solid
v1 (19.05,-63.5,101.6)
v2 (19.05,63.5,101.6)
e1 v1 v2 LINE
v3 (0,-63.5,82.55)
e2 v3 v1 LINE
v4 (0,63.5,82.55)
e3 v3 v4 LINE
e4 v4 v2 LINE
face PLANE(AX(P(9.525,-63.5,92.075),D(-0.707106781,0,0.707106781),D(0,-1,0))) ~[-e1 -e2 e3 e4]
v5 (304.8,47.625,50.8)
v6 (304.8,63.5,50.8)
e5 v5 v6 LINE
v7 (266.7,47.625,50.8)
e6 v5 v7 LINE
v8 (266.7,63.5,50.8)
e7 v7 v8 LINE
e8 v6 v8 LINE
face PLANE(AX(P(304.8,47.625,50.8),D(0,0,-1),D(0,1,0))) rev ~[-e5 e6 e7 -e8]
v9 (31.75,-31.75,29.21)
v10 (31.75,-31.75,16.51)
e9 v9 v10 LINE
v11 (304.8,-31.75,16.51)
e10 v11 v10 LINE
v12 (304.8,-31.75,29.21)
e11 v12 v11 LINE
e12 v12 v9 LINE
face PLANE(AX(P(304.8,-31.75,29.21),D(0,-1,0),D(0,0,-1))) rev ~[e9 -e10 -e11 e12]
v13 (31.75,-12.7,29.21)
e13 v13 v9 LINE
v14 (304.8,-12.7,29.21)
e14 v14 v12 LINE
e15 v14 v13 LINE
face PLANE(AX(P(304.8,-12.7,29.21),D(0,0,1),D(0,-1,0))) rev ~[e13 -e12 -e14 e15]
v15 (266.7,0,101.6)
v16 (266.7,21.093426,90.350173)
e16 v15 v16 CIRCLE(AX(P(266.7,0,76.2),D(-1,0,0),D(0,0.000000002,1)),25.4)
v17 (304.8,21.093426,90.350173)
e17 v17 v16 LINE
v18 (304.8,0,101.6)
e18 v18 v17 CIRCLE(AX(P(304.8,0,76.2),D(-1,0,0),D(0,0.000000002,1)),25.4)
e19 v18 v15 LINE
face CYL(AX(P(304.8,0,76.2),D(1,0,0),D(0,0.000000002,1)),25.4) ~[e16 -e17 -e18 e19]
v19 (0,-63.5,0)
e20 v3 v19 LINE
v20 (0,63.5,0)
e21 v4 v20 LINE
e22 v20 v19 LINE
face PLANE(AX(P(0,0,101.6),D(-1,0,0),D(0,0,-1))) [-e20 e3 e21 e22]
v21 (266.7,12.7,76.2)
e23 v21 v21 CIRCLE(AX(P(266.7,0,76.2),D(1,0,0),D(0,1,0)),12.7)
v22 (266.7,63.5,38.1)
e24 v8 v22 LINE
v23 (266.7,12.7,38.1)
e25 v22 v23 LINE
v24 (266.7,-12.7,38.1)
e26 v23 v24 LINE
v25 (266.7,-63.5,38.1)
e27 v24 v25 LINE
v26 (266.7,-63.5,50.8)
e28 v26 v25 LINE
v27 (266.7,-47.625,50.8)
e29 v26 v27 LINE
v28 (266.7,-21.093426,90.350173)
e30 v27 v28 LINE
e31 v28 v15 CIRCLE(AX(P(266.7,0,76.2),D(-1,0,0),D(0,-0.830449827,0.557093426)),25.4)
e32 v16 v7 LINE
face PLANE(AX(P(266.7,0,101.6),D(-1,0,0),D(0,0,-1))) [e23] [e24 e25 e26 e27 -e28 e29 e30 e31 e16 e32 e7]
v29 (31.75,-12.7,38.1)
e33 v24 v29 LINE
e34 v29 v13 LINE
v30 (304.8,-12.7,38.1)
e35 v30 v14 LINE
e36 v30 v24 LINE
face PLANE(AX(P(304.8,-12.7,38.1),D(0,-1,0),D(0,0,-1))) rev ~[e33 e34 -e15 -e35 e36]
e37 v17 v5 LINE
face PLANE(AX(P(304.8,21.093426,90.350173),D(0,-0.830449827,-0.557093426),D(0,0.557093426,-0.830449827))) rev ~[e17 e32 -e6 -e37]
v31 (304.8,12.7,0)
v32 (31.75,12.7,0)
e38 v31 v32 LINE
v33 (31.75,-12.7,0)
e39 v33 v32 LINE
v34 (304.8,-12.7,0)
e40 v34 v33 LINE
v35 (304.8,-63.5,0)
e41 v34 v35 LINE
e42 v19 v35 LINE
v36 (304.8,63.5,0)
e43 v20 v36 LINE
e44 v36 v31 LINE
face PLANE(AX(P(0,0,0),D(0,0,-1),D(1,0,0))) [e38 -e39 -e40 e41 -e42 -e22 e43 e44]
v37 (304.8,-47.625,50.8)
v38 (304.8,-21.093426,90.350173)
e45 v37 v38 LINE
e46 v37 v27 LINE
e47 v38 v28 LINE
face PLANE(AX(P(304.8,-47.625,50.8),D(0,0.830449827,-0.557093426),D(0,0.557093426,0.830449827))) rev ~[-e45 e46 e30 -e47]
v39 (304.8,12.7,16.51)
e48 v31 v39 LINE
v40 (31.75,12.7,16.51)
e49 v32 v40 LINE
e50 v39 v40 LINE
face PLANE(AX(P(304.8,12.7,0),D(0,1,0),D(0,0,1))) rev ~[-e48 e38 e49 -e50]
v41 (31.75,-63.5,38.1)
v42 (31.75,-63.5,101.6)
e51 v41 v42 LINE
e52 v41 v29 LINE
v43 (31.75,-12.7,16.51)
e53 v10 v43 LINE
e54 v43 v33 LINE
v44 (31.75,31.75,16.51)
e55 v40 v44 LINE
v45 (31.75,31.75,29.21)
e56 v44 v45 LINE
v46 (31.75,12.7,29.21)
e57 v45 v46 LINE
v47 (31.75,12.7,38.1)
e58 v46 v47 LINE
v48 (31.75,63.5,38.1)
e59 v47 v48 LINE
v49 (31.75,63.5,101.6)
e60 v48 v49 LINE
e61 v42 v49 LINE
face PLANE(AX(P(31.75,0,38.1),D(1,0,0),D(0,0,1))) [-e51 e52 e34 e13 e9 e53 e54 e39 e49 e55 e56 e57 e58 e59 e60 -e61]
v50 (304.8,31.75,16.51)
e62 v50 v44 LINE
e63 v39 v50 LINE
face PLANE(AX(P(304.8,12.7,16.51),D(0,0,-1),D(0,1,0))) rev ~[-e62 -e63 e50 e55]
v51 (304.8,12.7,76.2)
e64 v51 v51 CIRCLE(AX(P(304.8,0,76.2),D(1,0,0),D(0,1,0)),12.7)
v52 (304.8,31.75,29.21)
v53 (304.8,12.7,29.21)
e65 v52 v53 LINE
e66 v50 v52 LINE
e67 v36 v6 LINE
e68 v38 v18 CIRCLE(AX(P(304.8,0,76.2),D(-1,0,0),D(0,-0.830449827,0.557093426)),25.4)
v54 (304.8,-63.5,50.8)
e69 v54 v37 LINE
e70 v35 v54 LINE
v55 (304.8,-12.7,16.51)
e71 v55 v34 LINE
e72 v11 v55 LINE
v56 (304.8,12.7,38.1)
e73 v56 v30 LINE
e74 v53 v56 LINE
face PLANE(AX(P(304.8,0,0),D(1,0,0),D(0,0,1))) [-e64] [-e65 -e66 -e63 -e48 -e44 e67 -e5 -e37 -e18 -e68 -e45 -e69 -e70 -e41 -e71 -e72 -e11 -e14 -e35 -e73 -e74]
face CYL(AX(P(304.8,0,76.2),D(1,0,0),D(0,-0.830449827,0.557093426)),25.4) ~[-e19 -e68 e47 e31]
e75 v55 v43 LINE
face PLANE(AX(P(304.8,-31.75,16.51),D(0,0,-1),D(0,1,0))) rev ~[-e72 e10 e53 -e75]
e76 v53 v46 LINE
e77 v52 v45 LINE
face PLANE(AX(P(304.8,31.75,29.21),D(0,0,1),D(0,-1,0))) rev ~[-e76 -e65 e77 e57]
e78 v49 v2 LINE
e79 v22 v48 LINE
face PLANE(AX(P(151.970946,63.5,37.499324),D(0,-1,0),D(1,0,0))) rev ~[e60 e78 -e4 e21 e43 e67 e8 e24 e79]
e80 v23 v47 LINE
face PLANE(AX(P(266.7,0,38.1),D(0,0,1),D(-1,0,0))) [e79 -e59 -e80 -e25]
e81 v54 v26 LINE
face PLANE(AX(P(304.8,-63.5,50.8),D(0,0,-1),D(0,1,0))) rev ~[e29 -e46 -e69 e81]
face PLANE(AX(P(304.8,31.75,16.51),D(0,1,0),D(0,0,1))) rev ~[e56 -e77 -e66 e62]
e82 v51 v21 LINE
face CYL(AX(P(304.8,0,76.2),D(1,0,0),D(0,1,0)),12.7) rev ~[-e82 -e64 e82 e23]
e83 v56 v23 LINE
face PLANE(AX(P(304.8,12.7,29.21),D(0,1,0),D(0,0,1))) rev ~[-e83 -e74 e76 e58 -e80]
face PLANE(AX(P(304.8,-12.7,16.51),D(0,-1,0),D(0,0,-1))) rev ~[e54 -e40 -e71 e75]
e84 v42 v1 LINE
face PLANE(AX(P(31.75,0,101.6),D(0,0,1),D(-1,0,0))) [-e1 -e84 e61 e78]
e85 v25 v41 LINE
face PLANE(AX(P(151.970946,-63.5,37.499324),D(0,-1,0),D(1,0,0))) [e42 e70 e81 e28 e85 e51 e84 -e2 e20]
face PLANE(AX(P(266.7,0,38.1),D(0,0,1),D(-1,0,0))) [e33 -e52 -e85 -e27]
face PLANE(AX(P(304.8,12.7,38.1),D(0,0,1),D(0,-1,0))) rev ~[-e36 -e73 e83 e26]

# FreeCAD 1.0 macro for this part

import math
import FreeCAD as App
import Part
import Sketcher

V = App.Vector
Q = App.Units.Quantity


def edges_at(feature, points):
    """Names of the edges that pass closest to the given points."""
    edges = feature.Shape.Edges
    near = lambda p: min(range(len(edges)), key=lambda i: edges[i].distToShape(Part.Vertex(*p))[0])
    return sorted({f"Edge{near(p) + 1}" for p in points})


def add_polygon(sketch, points):
    """Adds a closed chain of lines whose ends are joined by coincident constraints."""
    first, n = sketch.GeometryCount, len(points)
    for a, b in zip(points, points[1:] + points[:1]):
        sketch.addGeometry(Part.LineSegment(App.Vector(*a, 0), App.Vector(*b, 0)), False)
    for i in range(n):
        sketch.addConstraint(Sketcher.Constraint("Coincident", first + i, 2, first + (i + 1) % n, 1))

doc = App.newDocument("Part")
body = doc.addObject("PartDesign::Body", "Body")

sketch1 = body.newObject("Sketcher::SketchObject", "Sketch")
sketch1.AttachmentSupport = (doc.getObject("XZ_Plane"), [""])
sketch1.MapMode = "FlatFace"
add_polygon(sketch1, [(0, 102), (0, 0), (305, 0), (305, 102), (267, 102), (267, 38), (32, 38), (32, 102)])
sketch1.addConstraint([
    Sketcher.Constraint("Vertical", 0),
    Sketcher.Constraint("Horizontal", 1),
    Sketcher.Constraint("Vertical", 2),
    Sketcher.Constraint("Horizontal", 3),
    Sketcher.Constraint("Vertical", 4),
    Sketcher.Constraint("Horizontal", 5),
    Sketcher.Constraint("Vertical", 6),
    Sketcher.Constraint("Horizontal", 7),
    Sketcher.Constraint("Coincident", 0, 2, -1, 1),
    Sketcher.Constraint("Horizontal", 3, 2, 6, 2),
    Sketcher.Constraint("DistanceX", 1, 1, 1, 2, Q("12 in")),
    Sketcher.Constraint("DistanceY", 0, 2, 0, 1, Q("4 in")),
    Sketcher.Constraint("DistanceX", 3, 2, 3, 1, Q("1.5 in")),
    Sketcher.Constraint("DistanceY", 4, 2, 4, 1, Q("2.5 in")),
    Sketcher.Constraint("DistanceX", 5, 2, 5, 1, Q("9.25 in")),
])
pad1 = body.newObject("PartDesign::Pad", "Pad")
pad1.Profile = sketch1
pad1.Length = Q("5 in")
pad1.Midplane = True

sketch2 = body.newObject("Sketcher::SketchObject", "Sketch001")
sketch2.AttachmentSupport = (doc.getObject("YZ_Plane"), [""])
sketch2.MapMode = "FlatFace"
sketch2.AttachmentOffset = App.Placement(V(0, 0, 12 * 25.4), App.Rotation())
sketch2.addGeometry([
    Part.LineSegment(V(-64, 102, 0), V(-64, 51, 0)),
    Part.LineSegment(V(-64, 51, 0), V(-48, 51, 0)),
    Part.LineSegment(V(-48, 51, 0), V(-21, 90, 0)),
    Part.ArcOfCircle(Part.Circle(V(0, 76, 0), V(0, 0, 1), 25), math.radians(90), math.radians(146)),
    Part.LineSegment(V(0, 102, 0), V(-64, 102, 0)),
    Part.LineSegment(V(48, 51, 0), V(64, 51, 0)),
    Part.LineSegment(V(64, 51, 0), V(64, 102, 0)),
    Part.LineSegment(V(64, 102, 0), V(0, 102, 0)),
    Part.ArcOfCircle(Part.Circle(V(0, 76, 0), V(0, 0, 1), 25), math.radians(34), math.radians(90)),
    Part.LineSegment(V(21, 90, 0), V(48, 51, 0)),
], False)
sketch2.addConstraint([
    Sketcher.Constraint("Coincident", 0, 2, 1, 1),
    Sketcher.Constraint("Coincident", 1, 2, 2, 1),
    Sketcher.Constraint("Tangent", 2, 2, 3, 2),
    Sketcher.Constraint("Tangent", 3, 1, 4, 1),
    Sketcher.Constraint("Coincident", 4, 2, 0, 1),
    Sketcher.Constraint("Coincident", 5, 2, 6, 1),
    Sketcher.Constraint("Coincident", 6, 2, 7, 1),
    Sketcher.Constraint("Tangent", 7, 2, 8, 2),
    Sketcher.Constraint("Tangent", 8, 1, 9, 1),
    Sketcher.Constraint("Coincident", 9, 2, 5, 1),
    Sketcher.Constraint("Vertical", 0),
    Sketcher.Constraint("Horizontal", 1),
    Sketcher.Constraint("Horizontal", 4),
    Sketcher.Constraint("Horizontal", 5),
    Sketcher.Constraint("Vertical", 6),
    Sketcher.Constraint("Horizontal", 7),
    Sketcher.Constraint("Coincident", 8, 3, 3, 3),
    Sketcher.Constraint("Equal", 3, 8),
    Sketcher.Constraint("Symmetric", 0, 2, 5, 2, -2),
    Sketcher.Constraint("Symmetric", 2, 2, 8, 1, -2),
    Sketcher.Constraint("Radius", 3, Q("1 in")),
    Sketcher.Constraint("DistanceY", 0, 2, 0, 1, Q("2 in")),
    Sketcher.Constraint("DistanceX", 4, 2, 4, 1, Q("2.5 in")),
    Sketcher.Constraint("DistanceY", -1, 1, 3, 3, Q("3 in")),
    Sketcher.Constraint("DistanceX", 1, 1, 1, 2, Q("0.625 in")),
])
pocket1 = body.newObject("PartDesign::Pocket", "Pocket")
pocket1.Profile = sketch2
pocket1.Length = Q("1.5 in")

sketch3 = body.newObject("Sketcher::SketchObject", "Sketch002")
sketch3.AttachmentSupport = (doc.getObject("YZ_Plane"), [""])
sketch3.MapMode = "FlatFace"
sketch3.AttachmentOffset = App.Placement(V(0, 0, 12 * 25.4), App.Rotation())
add_polygon(sketch3, [(13, 0), (13, 17), (32, 17), (32, 29), (13, 29), (13, 38), (-13, 38), (-13, 29), (-32, 29), (-32, 17), (-13, 17), (-13, 0)])
sketch3.addGeometry(Part.Circle(V(0, 76, 0), V(0, 0, 1), 13), False)
sketch3.addConstraint([
    Sketcher.Constraint("Vertical", 0),
    Sketcher.Constraint("Horizontal", 1),
    Sketcher.Constraint("Vertical", 2),
    Sketcher.Constraint("Horizontal", 3),
    Sketcher.Constraint("Vertical", 4),
    Sketcher.Constraint("Horizontal", 5),
    Sketcher.Constraint("Vertical", 6),
    Sketcher.Constraint("Horizontal", 7),
    Sketcher.Constraint("Vertical", 8),
    Sketcher.Constraint("Horizontal", 9),
    Sketcher.Constraint("Vertical", 10),
    Sketcher.Constraint("Horizontal", 11),
    Sketcher.Constraint("Symmetric", 10, 2, 11, 2, -1, 1),
    Sketcher.Constraint("Symmetric", 3, 2, 6, 2, -2),
    Sketcher.Constraint("Symmetric", 1, 2, 8, 2, -2),
    Sketcher.Constraint("PointOnObject", 12, 3, -2),
    Sketcher.Constraint("Vertical", 0, 2, 3, 2),
    Sketcher.Constraint("Diameter", 12, Q("1 in")),
    Sketcher.Constraint("DistanceX", 5, 2, 5, 1, Q("1 in")),
    Sketcher.Constraint("DistanceY", 2, 1, 2, 2, Q("0.5 in")),
    Sketcher.Constraint("DistanceY", -1, 1, 12, 3, Q("3 in")),
    Sketcher.Constraint("DistanceX", 1, 1, 1, 2, Q("0.75 in")),
    Sketcher.Constraint("DistanceY", 0, 1, 0, 2, Q("0.65 in")),
    Sketcher.Constraint("DistanceY", 4, 1, 4, 2, Q("0.35 in")),
])
pocket2 = body.newObject("PartDesign::Pocket", "Pocket001")
pocket2.Profile = sketch3
pocket2.Length = Q("10.75 in")
doc.recompute()

chamfer = body.newObject("PartDesign::Chamfer", "Chamfer")
chamfer.Base = (pocket2, edges_at(pocket2, [(0, 0, 101.6)]))
chamfer.ChamferType = "Two distances"
chamfer.Size = Q("0.75 in")
chamfer.Size2 = Q("0.75 in")

doc.recompute()
